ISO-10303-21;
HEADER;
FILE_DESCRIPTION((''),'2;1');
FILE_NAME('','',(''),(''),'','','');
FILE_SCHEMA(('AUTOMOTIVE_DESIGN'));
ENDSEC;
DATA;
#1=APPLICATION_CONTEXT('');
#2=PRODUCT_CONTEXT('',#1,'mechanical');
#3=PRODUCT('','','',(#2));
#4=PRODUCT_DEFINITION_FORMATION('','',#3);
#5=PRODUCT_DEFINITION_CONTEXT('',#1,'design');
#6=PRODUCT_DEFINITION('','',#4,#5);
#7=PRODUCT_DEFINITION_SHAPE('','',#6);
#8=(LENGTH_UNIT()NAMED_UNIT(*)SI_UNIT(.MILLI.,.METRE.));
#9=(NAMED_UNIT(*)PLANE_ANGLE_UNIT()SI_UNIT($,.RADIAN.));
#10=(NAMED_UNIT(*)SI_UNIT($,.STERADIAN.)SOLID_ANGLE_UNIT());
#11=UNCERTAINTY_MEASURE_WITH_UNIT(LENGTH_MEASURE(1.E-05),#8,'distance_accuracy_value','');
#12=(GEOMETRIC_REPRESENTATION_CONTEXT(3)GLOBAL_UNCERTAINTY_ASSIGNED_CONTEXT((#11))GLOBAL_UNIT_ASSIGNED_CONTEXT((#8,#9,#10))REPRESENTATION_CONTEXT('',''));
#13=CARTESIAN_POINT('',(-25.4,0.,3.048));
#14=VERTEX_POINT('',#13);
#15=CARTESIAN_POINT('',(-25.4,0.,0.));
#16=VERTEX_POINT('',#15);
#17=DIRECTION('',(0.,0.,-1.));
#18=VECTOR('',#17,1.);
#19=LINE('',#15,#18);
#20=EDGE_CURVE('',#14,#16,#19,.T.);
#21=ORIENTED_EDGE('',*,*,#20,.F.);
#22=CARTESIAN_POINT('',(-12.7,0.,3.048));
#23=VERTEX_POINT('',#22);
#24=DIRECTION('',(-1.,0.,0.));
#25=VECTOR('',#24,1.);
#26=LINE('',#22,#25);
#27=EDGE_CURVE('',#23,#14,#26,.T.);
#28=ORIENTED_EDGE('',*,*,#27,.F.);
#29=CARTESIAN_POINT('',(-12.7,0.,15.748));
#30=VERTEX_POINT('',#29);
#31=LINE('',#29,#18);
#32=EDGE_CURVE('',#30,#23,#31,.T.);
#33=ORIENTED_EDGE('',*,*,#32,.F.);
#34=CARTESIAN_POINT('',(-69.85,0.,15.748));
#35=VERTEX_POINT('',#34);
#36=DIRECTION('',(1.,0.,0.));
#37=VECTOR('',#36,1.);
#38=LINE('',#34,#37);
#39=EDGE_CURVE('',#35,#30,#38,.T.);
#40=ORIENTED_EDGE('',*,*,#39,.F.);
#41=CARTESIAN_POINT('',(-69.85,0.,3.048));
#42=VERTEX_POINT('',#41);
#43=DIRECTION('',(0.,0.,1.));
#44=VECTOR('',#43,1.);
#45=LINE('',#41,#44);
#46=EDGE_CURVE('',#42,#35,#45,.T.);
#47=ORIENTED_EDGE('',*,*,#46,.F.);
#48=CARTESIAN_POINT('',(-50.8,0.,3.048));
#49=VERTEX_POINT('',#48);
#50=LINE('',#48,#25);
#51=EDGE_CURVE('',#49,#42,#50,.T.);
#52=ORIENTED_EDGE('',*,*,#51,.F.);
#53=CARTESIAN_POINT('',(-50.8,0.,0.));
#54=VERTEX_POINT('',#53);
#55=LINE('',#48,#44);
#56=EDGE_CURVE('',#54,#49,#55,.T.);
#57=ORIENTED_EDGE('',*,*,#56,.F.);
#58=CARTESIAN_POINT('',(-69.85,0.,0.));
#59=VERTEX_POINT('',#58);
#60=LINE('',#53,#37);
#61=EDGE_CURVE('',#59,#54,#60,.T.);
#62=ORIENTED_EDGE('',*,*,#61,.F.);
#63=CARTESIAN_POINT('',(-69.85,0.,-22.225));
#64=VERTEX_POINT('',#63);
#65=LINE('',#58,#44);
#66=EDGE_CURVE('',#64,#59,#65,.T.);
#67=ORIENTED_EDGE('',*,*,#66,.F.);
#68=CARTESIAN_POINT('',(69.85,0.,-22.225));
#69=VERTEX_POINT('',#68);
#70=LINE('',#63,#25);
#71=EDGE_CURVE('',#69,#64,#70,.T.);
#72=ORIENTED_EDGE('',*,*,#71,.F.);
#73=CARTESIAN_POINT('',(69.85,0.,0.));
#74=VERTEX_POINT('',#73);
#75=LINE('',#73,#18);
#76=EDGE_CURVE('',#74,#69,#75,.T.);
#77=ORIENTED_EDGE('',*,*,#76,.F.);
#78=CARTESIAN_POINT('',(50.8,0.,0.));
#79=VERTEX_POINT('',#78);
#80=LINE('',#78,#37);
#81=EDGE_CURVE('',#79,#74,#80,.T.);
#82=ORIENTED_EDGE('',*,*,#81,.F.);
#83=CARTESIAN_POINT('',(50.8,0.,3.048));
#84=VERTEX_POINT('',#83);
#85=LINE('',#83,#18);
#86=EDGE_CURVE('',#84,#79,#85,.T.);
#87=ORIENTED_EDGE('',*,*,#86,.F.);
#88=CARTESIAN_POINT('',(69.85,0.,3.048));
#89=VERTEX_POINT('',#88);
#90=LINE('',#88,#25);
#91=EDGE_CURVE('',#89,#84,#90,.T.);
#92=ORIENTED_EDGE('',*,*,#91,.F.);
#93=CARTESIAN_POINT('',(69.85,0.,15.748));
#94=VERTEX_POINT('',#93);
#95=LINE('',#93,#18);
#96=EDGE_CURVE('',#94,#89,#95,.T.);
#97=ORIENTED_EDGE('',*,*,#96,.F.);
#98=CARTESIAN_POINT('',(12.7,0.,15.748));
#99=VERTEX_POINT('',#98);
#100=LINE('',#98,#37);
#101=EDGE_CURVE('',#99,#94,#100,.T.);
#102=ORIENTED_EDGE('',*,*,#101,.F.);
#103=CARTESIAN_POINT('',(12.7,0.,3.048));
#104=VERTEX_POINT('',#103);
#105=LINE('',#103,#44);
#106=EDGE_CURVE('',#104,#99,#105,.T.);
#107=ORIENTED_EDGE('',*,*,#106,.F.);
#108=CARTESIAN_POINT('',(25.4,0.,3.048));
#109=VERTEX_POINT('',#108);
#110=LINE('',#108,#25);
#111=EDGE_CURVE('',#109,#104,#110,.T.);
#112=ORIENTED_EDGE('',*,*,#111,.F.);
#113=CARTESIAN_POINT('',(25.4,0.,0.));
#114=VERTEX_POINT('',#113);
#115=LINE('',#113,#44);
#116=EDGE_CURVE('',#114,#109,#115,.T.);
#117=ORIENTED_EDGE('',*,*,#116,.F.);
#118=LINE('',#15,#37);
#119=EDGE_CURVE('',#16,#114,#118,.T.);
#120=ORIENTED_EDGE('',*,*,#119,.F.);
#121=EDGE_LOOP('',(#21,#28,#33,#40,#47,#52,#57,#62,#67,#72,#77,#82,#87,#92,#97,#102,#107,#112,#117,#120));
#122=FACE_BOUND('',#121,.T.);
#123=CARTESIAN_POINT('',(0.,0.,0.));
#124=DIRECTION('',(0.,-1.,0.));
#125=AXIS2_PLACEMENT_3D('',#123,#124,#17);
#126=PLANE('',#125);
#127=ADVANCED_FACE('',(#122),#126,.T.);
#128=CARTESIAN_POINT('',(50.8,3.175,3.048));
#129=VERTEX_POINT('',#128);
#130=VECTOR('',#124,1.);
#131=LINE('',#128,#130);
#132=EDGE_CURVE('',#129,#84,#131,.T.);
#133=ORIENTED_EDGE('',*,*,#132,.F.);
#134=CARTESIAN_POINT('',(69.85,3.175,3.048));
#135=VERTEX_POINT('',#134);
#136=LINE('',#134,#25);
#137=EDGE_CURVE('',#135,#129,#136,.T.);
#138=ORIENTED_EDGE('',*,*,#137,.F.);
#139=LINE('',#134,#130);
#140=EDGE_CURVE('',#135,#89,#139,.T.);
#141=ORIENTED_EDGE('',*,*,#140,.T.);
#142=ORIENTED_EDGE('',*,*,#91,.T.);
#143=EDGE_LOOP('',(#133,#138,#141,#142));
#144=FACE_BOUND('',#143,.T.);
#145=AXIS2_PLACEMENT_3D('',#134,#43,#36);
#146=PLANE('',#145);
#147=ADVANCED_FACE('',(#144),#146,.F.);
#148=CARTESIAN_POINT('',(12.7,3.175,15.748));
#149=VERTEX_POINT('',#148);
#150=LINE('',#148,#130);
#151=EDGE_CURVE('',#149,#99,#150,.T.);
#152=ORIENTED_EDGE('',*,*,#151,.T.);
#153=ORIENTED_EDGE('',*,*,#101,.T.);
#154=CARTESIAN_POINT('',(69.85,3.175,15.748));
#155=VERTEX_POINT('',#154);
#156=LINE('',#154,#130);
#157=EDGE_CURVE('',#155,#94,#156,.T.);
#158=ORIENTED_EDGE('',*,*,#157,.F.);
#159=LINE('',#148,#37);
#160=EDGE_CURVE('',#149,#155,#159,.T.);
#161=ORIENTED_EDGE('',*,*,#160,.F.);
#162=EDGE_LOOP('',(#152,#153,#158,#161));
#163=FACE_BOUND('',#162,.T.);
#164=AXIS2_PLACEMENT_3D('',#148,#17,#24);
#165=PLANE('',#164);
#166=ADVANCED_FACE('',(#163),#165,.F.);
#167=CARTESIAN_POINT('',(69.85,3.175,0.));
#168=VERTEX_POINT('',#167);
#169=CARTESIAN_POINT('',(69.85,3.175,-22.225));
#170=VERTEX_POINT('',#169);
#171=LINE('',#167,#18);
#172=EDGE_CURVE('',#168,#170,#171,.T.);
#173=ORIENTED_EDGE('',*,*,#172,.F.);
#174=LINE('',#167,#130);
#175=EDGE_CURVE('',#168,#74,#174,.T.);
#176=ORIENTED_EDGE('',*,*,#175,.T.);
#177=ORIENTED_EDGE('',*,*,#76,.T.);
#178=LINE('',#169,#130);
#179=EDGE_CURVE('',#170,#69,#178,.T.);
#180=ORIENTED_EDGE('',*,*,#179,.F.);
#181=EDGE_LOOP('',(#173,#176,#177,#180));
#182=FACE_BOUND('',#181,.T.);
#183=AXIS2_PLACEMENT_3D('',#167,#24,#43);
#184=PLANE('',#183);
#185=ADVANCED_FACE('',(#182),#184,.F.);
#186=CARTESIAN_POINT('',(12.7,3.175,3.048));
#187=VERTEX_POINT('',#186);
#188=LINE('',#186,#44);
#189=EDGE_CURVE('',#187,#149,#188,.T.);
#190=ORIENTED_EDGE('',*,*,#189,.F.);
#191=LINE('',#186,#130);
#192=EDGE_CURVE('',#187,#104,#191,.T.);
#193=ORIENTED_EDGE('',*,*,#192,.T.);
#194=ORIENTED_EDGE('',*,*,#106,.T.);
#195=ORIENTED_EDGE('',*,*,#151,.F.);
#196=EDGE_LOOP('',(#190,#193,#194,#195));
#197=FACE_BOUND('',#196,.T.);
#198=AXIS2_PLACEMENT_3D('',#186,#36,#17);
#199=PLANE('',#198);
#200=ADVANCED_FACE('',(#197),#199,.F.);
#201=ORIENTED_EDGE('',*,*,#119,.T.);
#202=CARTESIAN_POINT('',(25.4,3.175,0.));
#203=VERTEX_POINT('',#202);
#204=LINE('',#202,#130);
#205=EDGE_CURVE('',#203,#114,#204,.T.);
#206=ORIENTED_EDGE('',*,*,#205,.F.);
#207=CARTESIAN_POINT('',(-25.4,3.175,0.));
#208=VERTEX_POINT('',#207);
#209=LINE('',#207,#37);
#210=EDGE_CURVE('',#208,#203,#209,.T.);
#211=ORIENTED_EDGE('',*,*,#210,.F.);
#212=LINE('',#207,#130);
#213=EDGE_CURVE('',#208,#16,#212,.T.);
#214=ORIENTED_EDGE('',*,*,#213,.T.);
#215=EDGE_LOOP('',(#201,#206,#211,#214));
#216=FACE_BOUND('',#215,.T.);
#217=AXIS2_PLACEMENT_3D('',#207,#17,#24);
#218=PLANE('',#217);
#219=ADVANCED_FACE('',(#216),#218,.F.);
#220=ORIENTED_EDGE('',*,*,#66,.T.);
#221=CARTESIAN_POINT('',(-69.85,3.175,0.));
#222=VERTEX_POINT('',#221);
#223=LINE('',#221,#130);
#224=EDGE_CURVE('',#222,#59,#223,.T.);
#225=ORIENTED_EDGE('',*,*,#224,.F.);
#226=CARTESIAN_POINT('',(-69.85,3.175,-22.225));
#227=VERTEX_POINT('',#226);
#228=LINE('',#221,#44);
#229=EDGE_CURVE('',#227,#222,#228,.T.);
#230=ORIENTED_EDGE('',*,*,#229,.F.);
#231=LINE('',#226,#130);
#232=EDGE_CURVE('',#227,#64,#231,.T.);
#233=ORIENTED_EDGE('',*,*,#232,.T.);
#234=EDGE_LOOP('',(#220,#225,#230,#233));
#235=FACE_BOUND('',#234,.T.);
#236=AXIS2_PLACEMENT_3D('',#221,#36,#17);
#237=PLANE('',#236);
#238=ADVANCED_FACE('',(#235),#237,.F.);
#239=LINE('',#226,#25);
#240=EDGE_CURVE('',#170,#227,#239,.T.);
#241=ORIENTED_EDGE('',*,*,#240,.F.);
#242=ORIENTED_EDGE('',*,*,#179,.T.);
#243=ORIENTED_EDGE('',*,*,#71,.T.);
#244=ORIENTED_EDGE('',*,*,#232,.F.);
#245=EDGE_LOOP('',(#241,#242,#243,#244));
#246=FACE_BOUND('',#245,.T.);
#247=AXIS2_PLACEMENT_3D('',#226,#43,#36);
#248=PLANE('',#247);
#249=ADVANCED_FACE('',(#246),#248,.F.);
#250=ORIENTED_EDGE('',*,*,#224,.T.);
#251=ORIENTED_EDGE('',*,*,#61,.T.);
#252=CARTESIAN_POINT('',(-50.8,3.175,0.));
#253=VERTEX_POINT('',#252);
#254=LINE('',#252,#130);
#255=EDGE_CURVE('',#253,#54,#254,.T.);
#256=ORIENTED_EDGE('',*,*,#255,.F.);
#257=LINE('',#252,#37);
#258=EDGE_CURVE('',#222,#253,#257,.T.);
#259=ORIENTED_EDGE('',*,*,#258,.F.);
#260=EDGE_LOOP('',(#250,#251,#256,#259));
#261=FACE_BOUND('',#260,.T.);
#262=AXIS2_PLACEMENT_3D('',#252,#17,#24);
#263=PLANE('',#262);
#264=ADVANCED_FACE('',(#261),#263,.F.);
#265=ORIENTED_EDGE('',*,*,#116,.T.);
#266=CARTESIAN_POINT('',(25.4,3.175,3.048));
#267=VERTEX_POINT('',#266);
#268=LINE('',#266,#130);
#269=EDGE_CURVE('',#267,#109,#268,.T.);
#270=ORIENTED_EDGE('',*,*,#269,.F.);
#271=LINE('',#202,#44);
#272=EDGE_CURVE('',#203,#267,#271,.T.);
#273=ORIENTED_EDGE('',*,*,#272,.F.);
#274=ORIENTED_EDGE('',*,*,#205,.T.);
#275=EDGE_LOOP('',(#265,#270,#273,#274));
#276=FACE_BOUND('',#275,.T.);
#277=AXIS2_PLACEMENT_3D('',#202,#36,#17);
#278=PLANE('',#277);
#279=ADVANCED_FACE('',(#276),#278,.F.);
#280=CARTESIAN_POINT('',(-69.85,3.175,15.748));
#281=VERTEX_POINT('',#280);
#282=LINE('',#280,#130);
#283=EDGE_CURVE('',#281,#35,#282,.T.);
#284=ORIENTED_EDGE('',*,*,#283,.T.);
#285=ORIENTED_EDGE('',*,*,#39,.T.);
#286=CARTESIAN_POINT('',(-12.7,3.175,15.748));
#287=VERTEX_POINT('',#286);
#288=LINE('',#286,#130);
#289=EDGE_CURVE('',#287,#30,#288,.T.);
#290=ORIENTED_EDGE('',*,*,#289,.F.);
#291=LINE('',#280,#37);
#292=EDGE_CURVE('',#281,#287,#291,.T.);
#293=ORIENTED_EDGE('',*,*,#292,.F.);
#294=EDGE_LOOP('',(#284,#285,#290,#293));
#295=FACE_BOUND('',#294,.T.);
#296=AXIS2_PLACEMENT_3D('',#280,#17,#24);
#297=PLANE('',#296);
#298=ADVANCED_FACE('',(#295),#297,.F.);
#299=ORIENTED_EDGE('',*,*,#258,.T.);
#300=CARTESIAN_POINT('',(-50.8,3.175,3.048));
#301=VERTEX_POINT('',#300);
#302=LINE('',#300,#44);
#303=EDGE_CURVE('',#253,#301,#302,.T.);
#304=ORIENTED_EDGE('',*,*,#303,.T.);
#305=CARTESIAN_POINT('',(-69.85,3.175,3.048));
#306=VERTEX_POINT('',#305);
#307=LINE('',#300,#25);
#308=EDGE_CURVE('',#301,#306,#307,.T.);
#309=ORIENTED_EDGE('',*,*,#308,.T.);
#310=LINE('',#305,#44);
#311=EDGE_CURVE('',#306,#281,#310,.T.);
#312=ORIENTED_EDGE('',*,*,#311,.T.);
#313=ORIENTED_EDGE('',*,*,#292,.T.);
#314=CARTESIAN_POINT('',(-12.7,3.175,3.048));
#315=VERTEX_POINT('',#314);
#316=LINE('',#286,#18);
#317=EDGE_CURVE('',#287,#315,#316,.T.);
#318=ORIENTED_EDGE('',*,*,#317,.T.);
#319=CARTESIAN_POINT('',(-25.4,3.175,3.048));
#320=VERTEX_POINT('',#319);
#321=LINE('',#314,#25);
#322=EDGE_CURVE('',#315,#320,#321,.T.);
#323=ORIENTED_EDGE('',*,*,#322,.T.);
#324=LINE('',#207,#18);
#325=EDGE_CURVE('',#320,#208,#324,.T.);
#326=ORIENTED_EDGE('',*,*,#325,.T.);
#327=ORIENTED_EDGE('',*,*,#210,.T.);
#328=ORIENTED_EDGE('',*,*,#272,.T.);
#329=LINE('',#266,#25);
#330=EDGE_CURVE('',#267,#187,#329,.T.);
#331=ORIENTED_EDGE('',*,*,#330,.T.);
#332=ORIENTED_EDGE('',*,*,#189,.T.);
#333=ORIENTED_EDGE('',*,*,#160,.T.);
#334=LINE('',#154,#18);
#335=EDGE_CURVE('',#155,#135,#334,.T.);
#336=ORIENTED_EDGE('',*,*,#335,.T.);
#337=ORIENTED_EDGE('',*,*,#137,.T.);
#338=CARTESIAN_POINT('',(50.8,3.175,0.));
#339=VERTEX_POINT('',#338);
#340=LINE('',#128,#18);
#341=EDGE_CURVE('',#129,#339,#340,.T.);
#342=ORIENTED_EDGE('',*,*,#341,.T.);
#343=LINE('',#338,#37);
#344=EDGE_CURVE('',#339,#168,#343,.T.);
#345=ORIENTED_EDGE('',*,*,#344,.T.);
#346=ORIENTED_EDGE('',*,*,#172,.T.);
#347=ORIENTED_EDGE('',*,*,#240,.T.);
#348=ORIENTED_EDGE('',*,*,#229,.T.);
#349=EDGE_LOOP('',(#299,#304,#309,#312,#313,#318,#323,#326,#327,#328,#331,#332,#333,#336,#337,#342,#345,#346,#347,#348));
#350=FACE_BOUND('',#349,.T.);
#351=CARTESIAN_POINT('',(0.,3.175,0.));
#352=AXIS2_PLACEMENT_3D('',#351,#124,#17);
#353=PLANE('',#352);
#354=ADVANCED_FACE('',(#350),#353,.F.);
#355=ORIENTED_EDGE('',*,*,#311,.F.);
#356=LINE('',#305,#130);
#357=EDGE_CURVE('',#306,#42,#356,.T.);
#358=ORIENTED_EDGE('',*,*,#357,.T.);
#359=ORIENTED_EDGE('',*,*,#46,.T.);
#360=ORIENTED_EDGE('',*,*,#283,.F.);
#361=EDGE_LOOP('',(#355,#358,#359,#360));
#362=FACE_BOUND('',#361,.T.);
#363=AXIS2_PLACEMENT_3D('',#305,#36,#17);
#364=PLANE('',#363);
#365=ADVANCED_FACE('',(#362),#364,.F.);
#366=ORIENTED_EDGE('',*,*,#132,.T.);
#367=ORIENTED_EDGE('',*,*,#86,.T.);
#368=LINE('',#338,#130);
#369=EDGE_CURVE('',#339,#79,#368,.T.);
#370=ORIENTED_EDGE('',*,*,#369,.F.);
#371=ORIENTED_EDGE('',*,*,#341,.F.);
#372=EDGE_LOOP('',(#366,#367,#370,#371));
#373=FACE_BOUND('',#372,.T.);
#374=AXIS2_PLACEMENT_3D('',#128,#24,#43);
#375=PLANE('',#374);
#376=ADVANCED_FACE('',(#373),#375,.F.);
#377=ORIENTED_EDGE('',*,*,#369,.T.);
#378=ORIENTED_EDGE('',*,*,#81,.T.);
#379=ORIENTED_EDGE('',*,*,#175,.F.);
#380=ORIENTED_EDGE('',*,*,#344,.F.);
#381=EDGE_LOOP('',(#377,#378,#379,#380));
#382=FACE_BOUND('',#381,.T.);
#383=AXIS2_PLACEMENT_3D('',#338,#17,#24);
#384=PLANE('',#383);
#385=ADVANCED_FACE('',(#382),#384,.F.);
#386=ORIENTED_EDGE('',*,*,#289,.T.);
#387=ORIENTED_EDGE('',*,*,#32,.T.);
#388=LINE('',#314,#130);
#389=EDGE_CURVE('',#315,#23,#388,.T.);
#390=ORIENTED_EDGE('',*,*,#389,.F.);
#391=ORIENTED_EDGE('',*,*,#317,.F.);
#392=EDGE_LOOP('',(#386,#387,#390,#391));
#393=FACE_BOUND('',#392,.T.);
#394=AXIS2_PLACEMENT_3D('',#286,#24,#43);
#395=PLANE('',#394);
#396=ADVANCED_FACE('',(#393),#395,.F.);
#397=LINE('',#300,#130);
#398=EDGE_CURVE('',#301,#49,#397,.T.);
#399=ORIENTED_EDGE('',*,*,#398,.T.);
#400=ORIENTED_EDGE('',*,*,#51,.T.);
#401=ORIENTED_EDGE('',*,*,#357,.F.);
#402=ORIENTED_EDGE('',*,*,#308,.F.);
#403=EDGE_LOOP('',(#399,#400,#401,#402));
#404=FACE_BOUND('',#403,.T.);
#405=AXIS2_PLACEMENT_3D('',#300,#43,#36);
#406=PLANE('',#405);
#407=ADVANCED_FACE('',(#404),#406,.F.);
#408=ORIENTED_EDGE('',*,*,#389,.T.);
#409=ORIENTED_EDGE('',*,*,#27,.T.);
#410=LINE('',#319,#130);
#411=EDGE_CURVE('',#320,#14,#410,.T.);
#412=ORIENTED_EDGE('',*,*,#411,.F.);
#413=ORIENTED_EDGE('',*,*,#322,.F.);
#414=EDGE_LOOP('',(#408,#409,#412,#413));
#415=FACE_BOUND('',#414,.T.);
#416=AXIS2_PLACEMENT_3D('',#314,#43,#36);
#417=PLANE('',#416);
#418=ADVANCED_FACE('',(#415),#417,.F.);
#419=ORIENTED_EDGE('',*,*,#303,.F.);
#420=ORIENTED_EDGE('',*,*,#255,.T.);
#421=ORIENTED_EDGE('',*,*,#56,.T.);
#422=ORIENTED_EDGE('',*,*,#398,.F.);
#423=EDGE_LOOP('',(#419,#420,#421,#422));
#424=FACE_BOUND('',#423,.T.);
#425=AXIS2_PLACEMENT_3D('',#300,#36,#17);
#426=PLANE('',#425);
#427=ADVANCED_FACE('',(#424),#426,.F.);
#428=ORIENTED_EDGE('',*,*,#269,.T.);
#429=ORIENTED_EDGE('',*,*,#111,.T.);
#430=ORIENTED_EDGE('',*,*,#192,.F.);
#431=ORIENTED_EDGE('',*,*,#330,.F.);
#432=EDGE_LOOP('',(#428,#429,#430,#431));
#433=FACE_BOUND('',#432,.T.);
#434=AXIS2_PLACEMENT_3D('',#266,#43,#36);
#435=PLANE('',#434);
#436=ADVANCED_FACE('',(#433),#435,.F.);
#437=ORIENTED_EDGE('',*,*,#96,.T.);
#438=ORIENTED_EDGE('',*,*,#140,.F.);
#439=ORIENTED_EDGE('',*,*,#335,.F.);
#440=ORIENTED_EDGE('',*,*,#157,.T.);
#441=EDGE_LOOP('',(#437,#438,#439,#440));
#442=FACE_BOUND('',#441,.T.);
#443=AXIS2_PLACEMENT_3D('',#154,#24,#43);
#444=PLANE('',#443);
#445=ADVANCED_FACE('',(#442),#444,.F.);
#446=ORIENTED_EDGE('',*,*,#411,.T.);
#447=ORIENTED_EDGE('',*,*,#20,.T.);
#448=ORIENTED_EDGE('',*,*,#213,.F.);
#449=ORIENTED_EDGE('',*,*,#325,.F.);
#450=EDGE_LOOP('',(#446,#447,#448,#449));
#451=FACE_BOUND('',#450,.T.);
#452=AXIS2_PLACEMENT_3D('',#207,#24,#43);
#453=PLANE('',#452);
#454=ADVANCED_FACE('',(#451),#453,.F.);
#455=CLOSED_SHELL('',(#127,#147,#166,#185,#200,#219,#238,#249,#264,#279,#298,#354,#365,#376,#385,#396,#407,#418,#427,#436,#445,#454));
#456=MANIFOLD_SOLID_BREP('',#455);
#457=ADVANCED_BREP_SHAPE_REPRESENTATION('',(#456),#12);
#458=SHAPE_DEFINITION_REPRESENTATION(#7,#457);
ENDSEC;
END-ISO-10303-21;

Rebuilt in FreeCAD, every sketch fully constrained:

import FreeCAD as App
import Part
import Sketcher
Q = App.Units.Quantity


def add_polygon(sketch, points):
    """Adds a closed chain of lines whose ends are joined by coincident constraints."""
    first, n = sketch.GeometryCount, len(points)
    for a, b in zip(points, points[1:] + points[:1]):
        sketch.addGeometry(Part.LineSegment(App.Vector(*a, 0), App.Vector(*b, 0)), False)
    for i in range(n):
        sketch.addConstraint(Sketcher.Constraint("Coincident", first + i, 2, first + (i + 1) % n, 1))

doc = App.newDocument("Part")
body = doc.addObject("PartDesign::Body", "Body")

# Sketch on XZ plane
sketch1 = body.newObject("Sketcher::SketchObject", "Sketch")
sketch1.AttachmentSupport = (doc.getObject("XZ_Plane"), [""])
sketch1.MapMode = "FlatFace"
add_polygon(sketch1, [(69.8, -22.2), (-69.8, -22.2), (-69.8, 0), (-50.8, 0), (-50.8, 3), (-69.8, 3), (-69.8, 15.7), (-12.7, 15.7), (-12.7, 3), (-25.4, 3), (-25.4, 0), (25.4, 0), (25.4, 3), (12.7, 3), (12.7, 15.7), (69.8, 15.7), (69.8, 3), (50.8, 3), (50.8, 0), (69.8, 0)])  # lines 0-19
sketch1.addConstraint(Sketcher.Constraint("Horizontal", 0))
sketch1.addConstraint(Sketcher.Constraint("Vertical", 1))
sketch1.addConstraint(Sketcher.Constraint("Horizontal", 2))
sketch1.addConstraint(Sketcher.Constraint("Vertical", 3))
sketch1.addConstraint(Sketcher.Constraint("Horizontal", 4))
sketch1.addConstraint(Sketcher.Constraint("Vertical", 5))
sketch1.addConstraint(Sketcher.Constraint("Horizontal", 6))
sketch1.addConstraint(Sketcher.Constraint("Vertical", 7))
sketch1.addConstraint(Sketcher.Constraint("Horizontal", 8))
sketch1.addConstraint(Sketcher.Constraint("Vertical", 9))
sketch1.addConstraint(Sketcher.Constraint("Horizontal", 10))
sketch1.addConstraint(Sketcher.Constraint("Vertical", 11))
sketch1.addConstraint(Sketcher.Constraint("Horizontal", 12))
sketch1.addConstraint(Sketcher.Constraint("Vertical", 13))
sketch1.addConstraint(Sketcher.Constraint("Horizontal", 14))
sketch1.addConstraint(Sketcher.Constraint("Vertical", 15))
sketch1.addConstraint(Sketcher.Constraint("Horizontal", 16))
sketch1.addConstraint(Sketcher.Constraint("Vertical", 17))
sketch1.addConstraint(Sketcher.Constraint("Horizontal", 18))
sketch1.addConstraint(Sketcher.Constraint("Vertical", 19))
sketch1.addConstraint(Sketcher.Constraint("Symmetric", 9, 2, 10, 2, -1, 1))
sketch1.addConstraint(Sketcher.Constraint("Symmetric", 2, 2, 17, 2, -1, 1))
sketch1.addConstraint(Sketcher.Constraint("Symmetric", 7, 2, 12, 2, -2))
sketch1.addConstraint(Sketcher.Constraint("Symmetric", 5, 2, 14, 2, -2))
sketch1.addConstraint(Sketcher.Constraint("Symmetric", 1, 2, 18, 2, -2))
sketch1.addConstraint(Sketcher.Constraint("Horizontal", 4, 2, 7, 2))
sketch1.addConstraint(Sketcher.Constraint("Horizontal", 12, 2, 15, 2))
sketch1.addConstraint(Sketcher.Constraint("Vertical", 1, 2, 4, 2))
sketch1.addConstraint(Sketcher.Constraint("Equal", 12, 5))
sketch1.addConstraint(Sketcher.Constraint("DistanceX", 10, 1, 10, 2, Q("2 in")))
sketch1.addConstraint(Sketcher.Constraint("DistanceX", 0, 2, 0, 1, Q("5.5 in")))
sketch1.addConstraint(Sketcher.Constraint("DistanceX", 8, 2, 8, 1, Q("0.5 in")))
sketch1.addConstraint(Sketcher.Constraint("DistanceX", 2, 2, -1, 1, Q("2 in")))
sketch1.addConstraint(Sketcher.Constraint("DistanceY", 3, 1, 3, 2, Q("0.12 in")))
sketch1.addConstraint(Sketcher.Constraint("DistanceY", 1, 1, 1, 2, Q("0.875 in")))
pad1 = body.newObject("PartDesign::Pad", "Pad")
pad1.Profile = sketch1
pad1.Length = Q("0.125 in")
pad1.Reversed = True

doc.recompute()
